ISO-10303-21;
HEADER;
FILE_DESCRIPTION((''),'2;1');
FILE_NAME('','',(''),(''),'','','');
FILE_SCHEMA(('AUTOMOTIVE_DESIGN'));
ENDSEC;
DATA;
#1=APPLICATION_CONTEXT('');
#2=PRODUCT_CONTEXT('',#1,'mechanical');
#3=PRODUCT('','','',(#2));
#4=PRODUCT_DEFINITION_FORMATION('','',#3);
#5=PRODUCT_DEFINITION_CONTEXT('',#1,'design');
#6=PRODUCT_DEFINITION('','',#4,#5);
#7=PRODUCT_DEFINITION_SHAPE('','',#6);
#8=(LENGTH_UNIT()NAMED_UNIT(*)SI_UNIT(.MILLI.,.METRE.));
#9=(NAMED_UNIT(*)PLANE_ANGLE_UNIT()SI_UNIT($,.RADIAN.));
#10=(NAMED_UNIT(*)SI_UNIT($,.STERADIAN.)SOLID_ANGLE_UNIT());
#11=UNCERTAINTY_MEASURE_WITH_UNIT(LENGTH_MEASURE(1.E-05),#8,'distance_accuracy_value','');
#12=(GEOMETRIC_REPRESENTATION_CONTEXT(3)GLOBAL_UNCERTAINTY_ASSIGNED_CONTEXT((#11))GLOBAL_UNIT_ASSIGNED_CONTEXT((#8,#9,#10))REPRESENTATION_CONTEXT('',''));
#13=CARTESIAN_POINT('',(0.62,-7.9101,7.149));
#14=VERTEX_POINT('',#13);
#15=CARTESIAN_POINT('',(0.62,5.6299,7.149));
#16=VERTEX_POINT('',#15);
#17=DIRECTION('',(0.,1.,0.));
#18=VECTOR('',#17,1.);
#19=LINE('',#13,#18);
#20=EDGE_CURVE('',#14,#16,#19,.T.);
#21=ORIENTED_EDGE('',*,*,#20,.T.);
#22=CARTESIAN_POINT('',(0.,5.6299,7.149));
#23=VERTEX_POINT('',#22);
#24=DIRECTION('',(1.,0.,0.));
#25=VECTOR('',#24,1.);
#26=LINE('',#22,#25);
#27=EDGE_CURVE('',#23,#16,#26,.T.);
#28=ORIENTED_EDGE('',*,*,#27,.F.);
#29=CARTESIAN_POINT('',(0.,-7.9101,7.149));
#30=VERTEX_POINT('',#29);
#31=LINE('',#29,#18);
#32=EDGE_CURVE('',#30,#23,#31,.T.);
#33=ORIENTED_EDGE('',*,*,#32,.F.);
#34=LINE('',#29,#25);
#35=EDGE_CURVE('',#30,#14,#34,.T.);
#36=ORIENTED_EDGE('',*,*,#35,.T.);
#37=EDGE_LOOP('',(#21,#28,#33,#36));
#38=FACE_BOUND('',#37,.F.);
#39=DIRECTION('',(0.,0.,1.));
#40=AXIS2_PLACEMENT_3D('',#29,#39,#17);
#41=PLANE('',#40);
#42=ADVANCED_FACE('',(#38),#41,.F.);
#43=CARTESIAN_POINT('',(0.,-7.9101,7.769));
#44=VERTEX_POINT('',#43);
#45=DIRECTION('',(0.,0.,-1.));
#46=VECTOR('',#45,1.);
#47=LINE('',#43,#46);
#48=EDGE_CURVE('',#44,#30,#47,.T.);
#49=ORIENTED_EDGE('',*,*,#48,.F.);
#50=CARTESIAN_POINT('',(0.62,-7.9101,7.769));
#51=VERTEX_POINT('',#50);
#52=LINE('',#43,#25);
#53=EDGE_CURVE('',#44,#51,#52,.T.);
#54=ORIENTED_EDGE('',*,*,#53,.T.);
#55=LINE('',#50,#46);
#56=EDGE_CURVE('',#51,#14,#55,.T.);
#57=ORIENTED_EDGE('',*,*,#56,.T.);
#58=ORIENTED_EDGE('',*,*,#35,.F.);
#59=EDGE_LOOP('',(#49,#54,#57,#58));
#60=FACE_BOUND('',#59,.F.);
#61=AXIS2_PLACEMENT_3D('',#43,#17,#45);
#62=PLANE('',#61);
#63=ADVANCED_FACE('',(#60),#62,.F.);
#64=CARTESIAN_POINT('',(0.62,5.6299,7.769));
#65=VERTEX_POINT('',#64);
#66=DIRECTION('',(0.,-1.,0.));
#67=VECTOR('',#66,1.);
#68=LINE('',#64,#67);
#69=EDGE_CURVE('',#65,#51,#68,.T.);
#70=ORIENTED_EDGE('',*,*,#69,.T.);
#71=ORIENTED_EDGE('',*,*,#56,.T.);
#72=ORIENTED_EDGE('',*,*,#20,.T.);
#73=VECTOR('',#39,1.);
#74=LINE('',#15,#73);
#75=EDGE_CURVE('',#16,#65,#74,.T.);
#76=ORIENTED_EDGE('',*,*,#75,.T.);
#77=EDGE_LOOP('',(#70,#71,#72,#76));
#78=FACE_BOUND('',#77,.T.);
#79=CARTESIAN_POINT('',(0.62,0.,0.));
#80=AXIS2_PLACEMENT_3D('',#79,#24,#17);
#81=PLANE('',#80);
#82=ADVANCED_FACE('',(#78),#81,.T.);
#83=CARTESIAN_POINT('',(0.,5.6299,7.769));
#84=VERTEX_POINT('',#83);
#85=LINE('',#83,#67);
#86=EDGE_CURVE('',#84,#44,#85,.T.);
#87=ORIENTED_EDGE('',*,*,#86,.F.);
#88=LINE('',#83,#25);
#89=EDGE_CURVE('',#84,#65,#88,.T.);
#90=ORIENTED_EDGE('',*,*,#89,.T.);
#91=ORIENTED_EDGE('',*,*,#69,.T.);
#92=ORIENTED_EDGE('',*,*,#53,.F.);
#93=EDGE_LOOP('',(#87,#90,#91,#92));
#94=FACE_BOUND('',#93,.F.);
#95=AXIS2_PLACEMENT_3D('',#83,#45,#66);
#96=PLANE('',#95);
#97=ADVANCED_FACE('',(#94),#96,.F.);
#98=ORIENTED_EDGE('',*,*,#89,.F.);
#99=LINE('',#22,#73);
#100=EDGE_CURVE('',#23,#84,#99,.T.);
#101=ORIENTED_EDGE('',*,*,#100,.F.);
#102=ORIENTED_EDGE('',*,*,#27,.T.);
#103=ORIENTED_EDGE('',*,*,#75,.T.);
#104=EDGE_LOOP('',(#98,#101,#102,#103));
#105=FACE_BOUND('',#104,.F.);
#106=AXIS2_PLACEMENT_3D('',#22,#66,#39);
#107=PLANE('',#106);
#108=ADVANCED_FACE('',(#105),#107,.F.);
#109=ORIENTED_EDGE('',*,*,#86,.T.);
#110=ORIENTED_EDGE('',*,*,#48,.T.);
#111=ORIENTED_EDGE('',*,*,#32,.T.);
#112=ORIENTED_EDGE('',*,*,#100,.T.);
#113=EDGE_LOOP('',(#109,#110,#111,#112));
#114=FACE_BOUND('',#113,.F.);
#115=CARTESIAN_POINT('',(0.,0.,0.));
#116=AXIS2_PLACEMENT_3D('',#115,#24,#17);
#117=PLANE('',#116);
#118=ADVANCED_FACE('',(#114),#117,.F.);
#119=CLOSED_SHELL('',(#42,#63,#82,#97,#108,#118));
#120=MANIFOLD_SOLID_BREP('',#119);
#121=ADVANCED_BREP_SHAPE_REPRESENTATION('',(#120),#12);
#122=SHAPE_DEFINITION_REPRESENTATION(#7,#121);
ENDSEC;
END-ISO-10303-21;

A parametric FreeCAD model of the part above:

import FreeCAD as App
import Part
import Sketcher

V = App.Vector

doc = App.newDocument("Part")
body = doc.addObject("PartDesign::Body", "Body")

# Sketch on YZ plane
sketch1 = body.newObject("Sketcher::SketchObject", "Sketch")
sketch1.AttachmentSupport = (doc.getObject("YZ_Plane"), [""])
sketch1.MapMode = "FlatFace"
sketch1.addGeometry(Part.LineSegment(V(5.6299, 7.149, 0), V(5.6299, 7.769, 0)), False)
sketch1.addGeometry(Part.LineSegment(V(5.6299, 7.769, 0), V(-7.9101, 7.769, 0)), False)
sketch1.addGeometry(Part.LineSegment(V(-7.9101, 7.769, 0), V(-7.9101, 7.149, 0)), False)
sketch1.addGeometry(Part.LineSegment(V(-7.9101, 7.149, 0), V(5.6299, 7.149, 0)), False)
sketch1.addConstraint(Sketcher.Constraint("Coincident", 0, 2, 1, 1))
sketch1.addConstraint(Sketcher.Constraint("Coincident", 1, 2, 2, 1))
sketch1.addConstraint(Sketcher.Constraint("Coincident", 2, 2, 3, 1))
sketch1.addConstraint(Sketcher.Constraint("Coincident", 3, 2, 0, 1))
sketch1.addConstraint(Sketcher.Constraint("Vertical", 0))
sketch1.addConstraint(Sketcher.Constraint("Horizontal", 1))
sketch1.addConstraint(Sketcher.Constraint("Vertical", 2))
sketch1.addConstraint(Sketcher.Constraint("Horizontal", 3))
sketch1.addConstraint(Sketcher.Constraint("DistanceX", 1, 2, 1, 1, 13.54))
sketch1.addConstraint(Sketcher.Constraint("DistanceY", 0, 1, 0, 2, 0.62))
sketch1.addConstraint(Sketcher.Constraint("DistanceX", -1, 1, 0, 2, 5.63))
sketch1.addConstraint(Sketcher.Constraint("DistanceY", -1, 1, 0, 2, 7.769))
pad1 = body.newObject("PartDesign::Pad", "Pad")
pad1.Profile = sketch1
pad1.Length = 0.62

doc.recompute()
